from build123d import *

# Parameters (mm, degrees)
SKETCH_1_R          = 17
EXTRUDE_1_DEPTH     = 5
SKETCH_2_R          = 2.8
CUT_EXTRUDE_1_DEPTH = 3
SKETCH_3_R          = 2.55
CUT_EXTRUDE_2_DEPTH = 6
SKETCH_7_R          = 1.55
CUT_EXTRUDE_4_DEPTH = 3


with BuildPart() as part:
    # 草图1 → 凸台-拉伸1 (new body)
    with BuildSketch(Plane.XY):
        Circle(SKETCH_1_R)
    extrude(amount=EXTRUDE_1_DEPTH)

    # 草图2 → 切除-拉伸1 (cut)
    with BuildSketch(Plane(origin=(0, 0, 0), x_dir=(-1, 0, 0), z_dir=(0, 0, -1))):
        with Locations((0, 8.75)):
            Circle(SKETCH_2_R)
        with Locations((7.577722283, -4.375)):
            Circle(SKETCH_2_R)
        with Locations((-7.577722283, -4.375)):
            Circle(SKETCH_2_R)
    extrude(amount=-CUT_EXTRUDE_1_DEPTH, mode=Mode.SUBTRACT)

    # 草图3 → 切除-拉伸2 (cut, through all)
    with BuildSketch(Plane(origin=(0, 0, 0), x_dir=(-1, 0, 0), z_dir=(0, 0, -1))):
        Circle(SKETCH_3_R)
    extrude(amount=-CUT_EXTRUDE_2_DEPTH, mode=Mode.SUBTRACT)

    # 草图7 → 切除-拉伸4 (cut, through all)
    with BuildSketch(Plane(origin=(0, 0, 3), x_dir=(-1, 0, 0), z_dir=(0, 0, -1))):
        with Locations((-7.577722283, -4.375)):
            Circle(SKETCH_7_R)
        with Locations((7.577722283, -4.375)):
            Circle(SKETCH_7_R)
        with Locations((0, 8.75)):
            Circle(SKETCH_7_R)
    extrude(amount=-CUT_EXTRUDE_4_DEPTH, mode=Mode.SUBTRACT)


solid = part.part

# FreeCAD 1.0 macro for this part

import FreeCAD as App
import Part
import Sketcher
from FreeCAD import Vector

doc = App.newDocument("Part")
params = doc.addObject("Spreadsheet::Sheet", "Params")
for row, (alias, value) in enumerate([
    ("sketch1_diameter", "34 mm"),
    ("pad1_length", "5 mm"),
    ("sketch2_diameter", "5.6 mm"),
    ("pocket1_length", "3 mm"),
    ("sketch3_diameter", "5.1 mm"),
    ("sketch4_diameter", "3.1 mm"),
], start=1):
    params.set(f"A{row}", alias)
    params.set(f"B{row}", "=" + value)
    params.setAlias(f"B{row}", alias)

body = doc.addObject("PartDesign::Body", "Body")

# Sketch on XY plane
sketch1 = doc.addObject("Sketcher::SketchObject", "Sketch")
body.addObject(sketch1)
sketch1.AttachmentSupport = (doc.XY_Plane, [""])
sketch1.MapMode = "FlatFace"
sketch1.addGeometry(Part.Circle(Vector(0, 0, 0), Vector(0, 0, 1), 17), False)
sketch1.addConstraint([
    Sketcher.Constraint("Coincident", 0, 3, -1, 1),
    Sketcher.Constraint("Diameter", 0, 34.0),
])
sketch1.setExpression("Constraints[1]", "Params.sketch1_diameter")
pad1 = doc.addObject("PartDesign::Pad", "Pad")
body.addObject(pad1)
pad1.Profile = sketch1
pad1.setExpression("Length", "Params.pad1_length")

# Sketch on XY plane
sketch2 = doc.addObject("Sketcher::SketchObject", "Sketch001")
body.addObject(sketch2)
sketch2.AttachmentSupport = (doc.XY_Plane, [""])
sketch2.MapMode = "FlatFace"
sketch2.addGeometry([
    Part.Circle(Vector(0, 8.8, 0), Vector(0, 0, 1), 2.8),
    Part.Circle(Vector(-7.6, -4.4, 0), Vector(0, 0, 1), 2.8),
    Part.Circle(Vector(7.6, -4.4, 0), Vector(0, 0, 1), 2.8),
], False)
sketch2.addConstraint([
    Sketcher.Constraint("Equal", 0, 1),
    Sketcher.Constraint("Equal", 1, 2),
    Sketcher.Constraint("Symmetric", 1, 3, 2, 3, -2),
    Sketcher.Constraint("PointOnObject", 0, 3, -2),
    Sketcher.Constraint("Diameter", 0, 5.6),
    Sketcher.Constraint("DistanceY", -1, 1, 0, 3, 8.75),
    Sketcher.Constraint("DistanceY", 1, 3, -1, 1, 4.375),
    Sketcher.Constraint("DistanceX", 1, 3, -1, 1, 7.577722),
])
sketch2.setExpression("Constraints[4]", "Params.sketch2_diameter")
pocket1 = doc.addObject("PartDesign::Pocket", "Pocket")
body.addObject(pocket1)
pocket1.Profile = sketch2
pocket1.setExpression("Length", "Params.pocket1_length")
pocket1.Reversed = True

# Sketch on XY plane
sketch3 = doc.addObject("Sketcher::SketchObject", "Sketch002")
body.addObject(sketch3)
sketch3.AttachmentSupport = (doc.XY_Plane, [""])
sketch3.MapMode = "FlatFace"
sketch3.addGeometry(Part.Circle(Vector(0, 0, 0), Vector(0, 0, 1), 2.5), False)
sketch3.addConstraint([
    Sketcher.Constraint("Coincident", 0, 3, -1, 1),
    Sketcher.Constraint("Diameter", 0, 5.1),
])
sketch3.setExpression("Constraints[1]", "Params.sketch3_diameter")
pocket2 = doc.addObject("PartDesign::Pocket", "Pocket001")
body.addObject(pocket2)
pocket2.Profile = sketch3
pocket2.Type = "ThroughAll"
pocket2.Reversed = True

# Sketch on XY plane
sketch4 = doc.addObject("Sketcher::SketchObject", "Sketch003")
body.addObject(sketch4)
sketch4.AttachmentSupport = (doc.XY_Plane, [""])
sketch4.MapMode = "FlatFace"
sketch4.AttachmentOffset = App.Placement(Vector(0, 0, 3), App.Rotation())
sketch4.addGeometry([
    Part.Circle(Vector(7.6, -4.4, 0), Vector(0, 0, 1), 1.6),
    Part.Circle(Vector(-7.6, -4.4, 0), Vector(0, 0, 1), 1.6),
    Part.Circle(Vector(0, 8.8, 0), Vector(0, 0, 1), 1.6),
], False)
sketch4.addConstraint([
    Sketcher.Constraint("Equal", 0, 1),
    Sketcher.Constraint("Equal", 1, 2),
    Sketcher.Constraint("Symmetric", 0, 3, 1, 3, -2),
    Sketcher.Constraint("PointOnObject", 2, 3, -2),
    Sketcher.Constraint("Diameter", 0, 3.1),
    Sketcher.Constraint("DistanceY", -1, 1, 2, 3, 8.75),
    Sketcher.Constraint("DistanceY", 0, 3, -1, 1, 4.375),
    Sketcher.Constraint("DistanceX", -1, 1, 0, 3, 7.577722),
])
sketch4.setExpression("Constraints[4]", "Params.sketch4_diameter")
pocket3 = doc.addObject("PartDesign::Pocket", "Pocket002")
body.addObject(pocket3)
pocket3.Profile = sketch4
pocket3.Type = "ThroughAll"
pocket3.Reversed = True

doc.recompute()
